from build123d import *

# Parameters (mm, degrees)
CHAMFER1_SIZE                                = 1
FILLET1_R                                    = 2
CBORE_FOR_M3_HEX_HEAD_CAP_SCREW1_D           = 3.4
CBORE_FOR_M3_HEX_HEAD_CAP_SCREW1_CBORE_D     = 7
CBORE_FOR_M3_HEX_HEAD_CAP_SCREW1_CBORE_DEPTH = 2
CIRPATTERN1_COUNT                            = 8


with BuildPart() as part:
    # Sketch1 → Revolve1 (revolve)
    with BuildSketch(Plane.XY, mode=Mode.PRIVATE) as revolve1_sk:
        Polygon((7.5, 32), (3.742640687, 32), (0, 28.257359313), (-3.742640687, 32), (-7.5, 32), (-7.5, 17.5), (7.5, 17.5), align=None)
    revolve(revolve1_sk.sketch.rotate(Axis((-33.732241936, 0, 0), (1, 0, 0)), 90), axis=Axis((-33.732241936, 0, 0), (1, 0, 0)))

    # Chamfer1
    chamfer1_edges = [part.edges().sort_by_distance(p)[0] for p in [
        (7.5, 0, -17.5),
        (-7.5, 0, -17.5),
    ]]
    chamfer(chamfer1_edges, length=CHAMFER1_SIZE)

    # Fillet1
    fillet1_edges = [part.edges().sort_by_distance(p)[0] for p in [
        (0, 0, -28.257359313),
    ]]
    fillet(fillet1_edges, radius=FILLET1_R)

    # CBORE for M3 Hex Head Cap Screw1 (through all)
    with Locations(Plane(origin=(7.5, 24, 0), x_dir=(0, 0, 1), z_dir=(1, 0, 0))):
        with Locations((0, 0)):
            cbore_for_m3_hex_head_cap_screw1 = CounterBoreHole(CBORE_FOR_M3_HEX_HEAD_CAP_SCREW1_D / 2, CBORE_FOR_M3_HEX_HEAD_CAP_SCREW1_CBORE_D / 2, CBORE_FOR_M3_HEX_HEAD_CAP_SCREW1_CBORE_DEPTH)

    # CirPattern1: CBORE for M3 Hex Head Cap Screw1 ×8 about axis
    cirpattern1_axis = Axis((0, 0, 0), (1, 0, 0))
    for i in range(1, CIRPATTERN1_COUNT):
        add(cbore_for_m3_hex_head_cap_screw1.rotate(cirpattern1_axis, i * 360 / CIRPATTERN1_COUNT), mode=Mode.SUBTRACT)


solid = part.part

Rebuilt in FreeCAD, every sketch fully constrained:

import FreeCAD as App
import Part
import Sketcher

V = App.Vector
Q = App.Units.Quantity


def edges_at(feature, points):
    """Names of the edges that pass closest to the given points."""
    edges = feature.Shape.Edges
    near = lambda p: min(range(len(edges)), key=lambda i: edges[i].distToShape(Part.Vertex(*p))[0])
    return sorted({f"Edge{near(p) + 1}" for p in points})

doc = App.newDocument("Part")
body = doc.addObject("PartDesign::Body", "Body")

# Sketch on XY plane
sketch1 = body.newObject("Sketcher::SketchObject", "Sketch")
sketch1.AttachmentSupport = (doc.getObject("XY_Plane"), [""])
sketch1.MapMode = "FlatFace"
sketch1.addGeometry([
    Part.LineSegment(V(7.5, 32, 0), V(3.7, 32, 0)),  # 0
    Part.LineSegment(V(3.7, 32, 0), V(0, 28.3, 0)),  # 1
    Part.LineSegment(V(0, 28.3, 0), V(-3.7, 32, 0)),  # 2
    Part.LineSegment(V(-3.7, 32, 0), V(-7.5, 32, 0)),  # 3
    Part.LineSegment(V(-7.5, 32, 0), V(-7.5, 17.5, 0)),  # 4
    Part.LineSegment(V(-7.5, 17.5, 0), V(7.5, 17.5, 0)),  # 5
    Part.LineSegment(V(7.5, 17.5, 0), V(7.5, 32, 0)),  # 6
], False)
sketch1.addConstraint([
    Sketcher.Constraint("Coincident", 0, 2, 1, 1),
    Sketcher.Constraint("Coincident", 1, 2, 2, 1),
    Sketcher.Constraint("Coincident", 2, 2, 3, 1),
    Sketcher.Constraint("Coincident", 3, 2, 4, 1),
    Sketcher.Constraint("Coincident", 4, 2, 5, 1),
    Sketcher.Constraint("Coincident", 5, 2, 6, 1),
    Sketcher.Constraint("Coincident", 6, 2, 0, 1),
    Sketcher.Constraint("Horizontal", 0),
    Sketcher.Constraint("Horizontal", 3),
    Sketcher.Constraint("Vertical", 4),
    Sketcher.Constraint("Horizontal", 5),
    Sketcher.Constraint("Vertical", 6),
    Sketcher.Constraint("Symmetric", 0, 2, 2, 2, -2),
    Sketcher.Constraint("PointOnObject", 1, 2, -2),
    Sketcher.Constraint("Perpendicular", 1, 2),
    Sketcher.Constraint("Equal", 0, 3),
    Sketcher.Constraint("DistanceX", 5, 1, 5, 2, Q("15 mm")),
    Sketcher.Constraint("DistanceY", 4, 2, 4, 1, Q("14.5 mm")),
    Sketcher.Constraint("DistanceY", -1, 1, 0, 2, Q("32 mm")),
    Sketcher.Constraint("DistanceX", 0, 2, 0, 1, Q("3.757359 mm")),
])
revolution = body.newObject("PartDesign::Revolution", "Revolution")
revolution.Profile = sketch1
revolution.ReferenceAxis = (sketch1, ["H_Axis"])
revolution.Angle = 360
doc.recompute()

chamfer = body.newObject("PartDesign::Chamfer", "Chamfer")
chamfer.Base = (revolution, edges_at(revolution, [(7.5, 0, -17.5), (-7.5, 0, -17.5)]))
chamfer.Size = 1
doc.recompute()

fillet = body.newObject("PartDesign::Fillet", "Fillet")
fillet.Base = (chamfer, edges_at(chamfer, [(0, 0, -28.257)]))
fillet.Radius = 2

# Sketch on YZ plane
sketch2 = body.newObject("Sketcher::SketchObject", "Sketch001")
sketch2.AttachmentSupport = (doc.getObject("YZ_Plane"), [""])
sketch2.MapMode = "FlatFace"
sketch2.AttachmentOffset = App.Placement(V(0, 0, 7.5), App.Rotation())
sketch2.addGeometry(Part.Circle(V(24, 0, 0), V(0, 0, 1), 1.7), False)
sketch2.addConstraint([
    Sketcher.Constraint("PointOnObject", 0, 3, -1),
    Sketcher.Constraint("Diameter", 0, Q("3.4 mm")),
    Sketcher.Constraint("DistanceX", -1, 1, 0, 3, Q("24 mm")),
])
doc.recompute()
hole = body.newObject("PartDesign::Hole", "Hole")
hole.Profile = sketch2
hole.ThreadType = "None"
hole.Diameter = 3.4
hole.DepthType = "ThroughAll"
hole.HoleCutType = "Counterbore"
hole.HoleCutDiameter = 7
hole.HoleCutDepth = 2
doc.recompute()

polarpattern = body.newObject("PartDesign::PolarPattern", "PolarPattern")
polarpattern.Originals = [hole]
polarpattern.Axis = (doc.getObject("X_Axis"), [""])
polarpattern.Angle = 360
polarpattern.Occurrences = 8
body.Tip = polarpattern

doc.recompute()
